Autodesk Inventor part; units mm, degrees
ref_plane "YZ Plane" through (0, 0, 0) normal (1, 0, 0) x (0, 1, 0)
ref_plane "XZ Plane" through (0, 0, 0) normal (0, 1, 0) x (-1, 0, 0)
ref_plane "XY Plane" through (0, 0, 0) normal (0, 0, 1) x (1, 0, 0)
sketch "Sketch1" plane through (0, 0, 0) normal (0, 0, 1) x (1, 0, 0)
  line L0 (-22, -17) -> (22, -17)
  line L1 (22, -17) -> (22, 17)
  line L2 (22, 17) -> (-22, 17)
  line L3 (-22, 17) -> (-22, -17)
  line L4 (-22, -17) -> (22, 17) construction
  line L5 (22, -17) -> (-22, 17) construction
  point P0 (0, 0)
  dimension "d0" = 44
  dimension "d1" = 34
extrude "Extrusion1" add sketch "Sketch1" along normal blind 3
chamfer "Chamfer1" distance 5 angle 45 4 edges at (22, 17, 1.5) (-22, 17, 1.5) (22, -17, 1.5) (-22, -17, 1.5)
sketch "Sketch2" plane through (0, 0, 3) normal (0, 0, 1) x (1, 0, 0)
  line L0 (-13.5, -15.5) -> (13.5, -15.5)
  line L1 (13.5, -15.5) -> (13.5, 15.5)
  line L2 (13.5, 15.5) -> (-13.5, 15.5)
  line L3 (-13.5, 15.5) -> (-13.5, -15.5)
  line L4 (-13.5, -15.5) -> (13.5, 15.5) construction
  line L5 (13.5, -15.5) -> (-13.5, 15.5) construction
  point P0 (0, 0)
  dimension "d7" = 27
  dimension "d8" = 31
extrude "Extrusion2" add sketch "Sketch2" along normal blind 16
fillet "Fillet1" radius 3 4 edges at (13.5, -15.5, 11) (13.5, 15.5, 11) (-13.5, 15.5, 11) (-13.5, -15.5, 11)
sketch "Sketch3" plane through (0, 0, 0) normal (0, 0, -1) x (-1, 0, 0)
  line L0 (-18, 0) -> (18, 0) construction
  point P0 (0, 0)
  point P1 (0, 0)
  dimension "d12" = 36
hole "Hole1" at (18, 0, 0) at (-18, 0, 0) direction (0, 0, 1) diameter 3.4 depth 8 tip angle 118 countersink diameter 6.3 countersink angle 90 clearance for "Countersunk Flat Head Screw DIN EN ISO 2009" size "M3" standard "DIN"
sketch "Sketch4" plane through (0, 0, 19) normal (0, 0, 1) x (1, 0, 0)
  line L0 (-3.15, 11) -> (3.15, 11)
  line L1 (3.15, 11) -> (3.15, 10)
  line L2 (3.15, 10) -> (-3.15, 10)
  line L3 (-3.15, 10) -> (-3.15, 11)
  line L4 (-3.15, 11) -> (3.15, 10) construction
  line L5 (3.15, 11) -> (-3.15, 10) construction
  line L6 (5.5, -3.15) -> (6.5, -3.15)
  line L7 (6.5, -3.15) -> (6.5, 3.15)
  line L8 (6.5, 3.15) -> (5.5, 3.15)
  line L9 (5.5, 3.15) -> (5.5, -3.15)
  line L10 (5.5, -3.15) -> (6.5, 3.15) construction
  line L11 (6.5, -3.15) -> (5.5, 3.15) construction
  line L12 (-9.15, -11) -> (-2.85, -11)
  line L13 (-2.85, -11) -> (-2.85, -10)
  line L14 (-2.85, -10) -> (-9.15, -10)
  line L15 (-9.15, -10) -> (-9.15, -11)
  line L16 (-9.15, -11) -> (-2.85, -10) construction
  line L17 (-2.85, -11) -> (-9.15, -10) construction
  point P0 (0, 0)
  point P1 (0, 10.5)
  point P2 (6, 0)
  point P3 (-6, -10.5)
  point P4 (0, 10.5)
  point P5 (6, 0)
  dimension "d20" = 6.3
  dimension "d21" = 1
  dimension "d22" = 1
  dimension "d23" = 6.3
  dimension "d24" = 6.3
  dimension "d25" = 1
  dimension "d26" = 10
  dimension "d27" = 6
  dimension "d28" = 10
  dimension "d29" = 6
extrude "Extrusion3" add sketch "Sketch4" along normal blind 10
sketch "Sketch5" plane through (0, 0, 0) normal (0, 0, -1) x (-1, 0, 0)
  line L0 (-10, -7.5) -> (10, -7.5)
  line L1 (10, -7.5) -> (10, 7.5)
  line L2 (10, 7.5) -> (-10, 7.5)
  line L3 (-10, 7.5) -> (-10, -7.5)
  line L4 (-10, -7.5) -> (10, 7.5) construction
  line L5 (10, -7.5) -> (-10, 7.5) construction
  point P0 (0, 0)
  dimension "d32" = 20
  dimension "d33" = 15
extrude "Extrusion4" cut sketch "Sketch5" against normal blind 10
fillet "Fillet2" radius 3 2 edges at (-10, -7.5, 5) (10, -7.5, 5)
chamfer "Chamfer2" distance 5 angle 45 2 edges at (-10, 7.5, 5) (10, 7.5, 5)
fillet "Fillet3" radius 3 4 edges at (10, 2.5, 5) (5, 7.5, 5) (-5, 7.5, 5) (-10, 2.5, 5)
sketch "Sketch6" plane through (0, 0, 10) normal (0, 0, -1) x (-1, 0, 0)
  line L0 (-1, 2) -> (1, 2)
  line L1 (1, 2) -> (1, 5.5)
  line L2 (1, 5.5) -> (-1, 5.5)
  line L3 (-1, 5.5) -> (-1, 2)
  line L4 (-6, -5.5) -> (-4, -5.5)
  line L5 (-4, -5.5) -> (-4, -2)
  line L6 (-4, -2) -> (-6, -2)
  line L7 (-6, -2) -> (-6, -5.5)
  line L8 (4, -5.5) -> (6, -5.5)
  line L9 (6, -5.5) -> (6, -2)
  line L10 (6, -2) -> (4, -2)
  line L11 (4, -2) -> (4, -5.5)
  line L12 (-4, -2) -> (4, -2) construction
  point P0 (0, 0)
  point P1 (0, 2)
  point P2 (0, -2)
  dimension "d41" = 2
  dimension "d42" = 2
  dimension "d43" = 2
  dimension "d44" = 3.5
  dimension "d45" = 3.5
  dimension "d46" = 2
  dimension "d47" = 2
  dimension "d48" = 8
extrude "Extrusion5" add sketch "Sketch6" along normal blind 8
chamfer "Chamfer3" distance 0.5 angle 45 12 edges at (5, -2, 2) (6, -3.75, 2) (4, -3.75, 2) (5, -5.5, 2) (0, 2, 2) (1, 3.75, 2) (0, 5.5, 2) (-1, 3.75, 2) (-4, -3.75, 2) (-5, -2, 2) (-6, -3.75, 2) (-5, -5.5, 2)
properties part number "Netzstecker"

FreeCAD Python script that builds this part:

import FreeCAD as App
import Part
import Sketcher

V = App.Vector


def edges_at(feature, points):
    """Names of the edges that pass closest to the given points."""
    edges = feature.Shape.Edges
    near = lambda p: min(range(len(edges)), key=lambda i: edges[i].distToShape(Part.Vertex(*p))[0])
    return sorted({f"Edge{near(p) + 1}" for p in points})


def add_polygon(sketch, points):
    """Adds a closed chain of lines whose ends are joined by coincident constraints."""
    first, n = sketch.GeometryCount, len(points)
    for a, b in zip(points, points[1:] + points[:1]):
        sketch.addGeometry(Part.LineSegment(App.Vector(*a, 0), App.Vector(*b, 0)), False)
    for i in range(n):
        sketch.addConstraint(Sketcher.Constraint("Coincident", first + i, 2, first + (i + 1) % n, 1))

doc = App.newDocument("Part")
body = doc.addObject("PartDesign::Body", "Body")

sketch1 = body.newObject("Sketcher::SketchObject", "Sketch")
sketch1.AttachmentSupport = (doc.getObject("XY_Plane"), [""])
sketch1.MapMode = "FlatFace"
add_polygon(sketch1, [(-22, 17), (-22, -17), (22, -17), (22, 17)])
sketch1.addConstraint(Sketcher.Constraint("Vertical", 0))
sketch1.addConstraint(Sketcher.Constraint("Horizontal", 1))
sketch1.addConstraint(Sketcher.Constraint("Vertical", 2))
sketch1.addConstraint(Sketcher.Constraint("Horizontal", 3))
sketch1.addConstraint(Sketcher.Constraint("Symmetric", 0, 2, 2, 2, -1, 1))
sketch1.addConstraint(Sketcher.Constraint("DistanceX", 1, 1, 1, 2, 44.0))
sketch1.addConstraint(Sketcher.Constraint("DistanceY", 0, 2, 0, 1, 34.0))
pad1 = body.newObject("PartDesign::Pad", "Pad")
pad1.Profile = sketch1
pad1.Length = 3
doc.recompute()

chamfer = body.newObject("PartDesign::Chamfer", "Chamfer")
chamfer.Base = (pad1, edges_at(pad1, [
    (22, 17, 1.5),
    (-22, 17, 1.5),
    (22, -17, 1.5),
    (-22, -17, 1.5),
]))
chamfer.Size = 5

sketch2 = body.newObject("Sketcher::SketchObject", "Sketch001")
sketch2.AttachmentSupport = (doc.getObject("XY_Plane"), [""])
sketch2.MapMode = "FlatFace"
sketch2.AttachmentOffset = App.Placement(V(0, 0, 3), App.Rotation())
add_polygon(sketch2, [(-14, 16), (-14, -16), (14, -16), (14, 16)])
sketch2.addConstraint(Sketcher.Constraint("Vertical", 0))
sketch2.addConstraint(Sketcher.Constraint("Horizontal", 1))
sketch2.addConstraint(Sketcher.Constraint("Vertical", 2))
sketch2.addConstraint(Sketcher.Constraint("Horizontal", 3))
sketch2.addConstraint(Sketcher.Constraint("Symmetric", 0, 2, 2, 2, -1, 1))
sketch2.addConstraint(Sketcher.Constraint("DistanceX", 1, 1, 1, 2, 27.0))
sketch2.addConstraint(Sketcher.Constraint("DistanceY", 0, 2, 0, 1, 31.0))
pad2 = body.newObject("PartDesign::Pad", "Pad001")
pad2.Profile = sketch2
pad2.Length = 16
doc.recompute()

fillet = body.newObject("PartDesign::Fillet", "Fillet")
fillet.Base = (pad2, edges_at(pad2, [
    (13.5, -15.5, 11),
    (13.5, 15.5, 11),
    (-13.5, 15.5, 11),
    (-13.5, -15.5, 11),
]))
fillet.Radius = 3

sketch3 = body.newObject("Sketcher::SketchObject", "Sketch002")
sketch3.AttachmentSupport = (doc.getObject("XY_Plane"), [""])
sketch3.MapMode = "FlatFace"
sketch3.addGeometry(Part.Circle(V(18, 0, 0), V(0, 0, 1), 1.7), False)
sketch3.addGeometry(Part.Circle(V(-18, 0, 0), V(0, 0, 1), 1.7), False)
sketch3.addConstraint(Sketcher.Constraint("Equal", 0, 1))
sketch3.addConstraint(Sketcher.Constraint("Symmetric", 0, 3, 1, 3, -1, 1))
sketch3.addConstraint(Sketcher.Constraint("PointOnObject", 0, 3, -1))
sketch3.addConstraint(Sketcher.Constraint("Diameter", 0, 3.4))
sketch3.addConstraint(Sketcher.Constraint("DistanceX", -1, 1, 0, 3, 18.0))
doc.recompute()
hole = body.newObject("PartDesign::Hole", "Hole")
hole.Profile = sketch3
hole.ThreadType = "None"
hole.Diameter = 3.4
hole.DepthType = "Dimension"
hole.Depth = 8
hole.DrillPoint = "Angled"
hole.DrillPointAngle = 118
hole.HoleCutType = "Countersink"
hole.HoleCutDiameter = 6.3
hole.HoleCutCountersinkAngle = 90
hole.Reversed = True

sketch4 = body.newObject("Sketcher::SketchObject", "Sketch003")
sketch4.AttachmentSupport = (doc.getObject("XY_Plane"), [""])
sketch4.MapMode = "FlatFace"
sketch4.AttachmentOffset = App.Placement(V(0, 0, 19), App.Rotation())
add_polygon(sketch4, [(3.1, 11), (-3.1, 11), (-3.1, 10), (3.1, 10)])
add_polygon(sketch4, [(5.5, 3.1), (5.5, -3.1), (6.5, -3.1), (6.5, 3.1)])
add_polygon(sketch4, [(-9.2, -10), (-9.2, -11), (-2.9, -11), (-2.9, -10)])
sketch4.addConstraint(Sketcher.Constraint("Horizontal", 0))
sketch4.addConstraint(Sketcher.Constraint("Vertical", 1))
sketch4.addConstraint(Sketcher.Constraint("Horizontal", 2))
sketch4.addConstraint(Sketcher.Constraint("Vertical", 3))
sketch4.addConstraint(Sketcher.Constraint("Vertical", 4))
sketch4.addConstraint(Sketcher.Constraint("Horizontal", 5))
sketch4.addConstraint(Sketcher.Constraint("Vertical", 6))
sketch4.addConstraint(Sketcher.Constraint("Horizontal", 7))
sketch4.addConstraint(Sketcher.Constraint("Vertical", 8))
sketch4.addConstraint(Sketcher.Constraint("Horizontal", 9))
sketch4.addConstraint(Sketcher.Constraint("Vertical", 10))
sketch4.addConstraint(Sketcher.Constraint("Horizontal", 11))
sketch4.addConstraint(Sketcher.Constraint("Equal", 2, 9))
sketch4.addConstraint(Sketcher.Constraint("Equal", 7, 1))
sketch4.addConstraint(Sketcher.Constraint("Equal", 11, 4))
sketch4.addConstraint(Sketcher.Constraint("Equal", 3, 8))
sketch4.addConstraint(Sketcher.Constraint("DistanceX", 5, 1, 5, 2, 1.0))
sketch4.addConstraint(Sketcher.Constraint("DistanceX", 0, 2, 0, 1, 6.3))
sketch4.addConstraint(Sketcher.Constraint("DistanceY", -1, 1, 1, 2, 10.0))
sketch4.addConstraint(Sketcher.Constraint("DistanceY", 10, 2, -1, 1, 10.0))
sketch4.addConstraint(Sketcher.Constraint("DistanceX", 8, 2, 1, 2, 6.0))
sketch4.addConstraint(Sketcher.Constraint("DistanceX", -1, 1, 4, 2, 5.5))
sketch4.addConstraint(Sketcher.Constraint("DistanceX", 0, 2, -1, 1, 3.15))
sketch4.addConstraint(Sketcher.Constraint("DistanceY", 4, 2, -1, 1, 3.15))
pad3 = body.newObject("PartDesign::Pad", "Pad002")
pad3.Profile = sketch4
pad3.Length = 10

sketch5 = body.newObject("Sketcher::SketchObject", "Sketch004")
sketch5.AttachmentSupport = (doc.getObject("XY_Plane"), [""])
sketch5.MapMode = "FlatFace"
add_polygon(sketch5, [(10, 8), (10, -8), (-10, -8), (-10, 8)])
sketch5.addConstraint(Sketcher.Constraint("Vertical", 0))
sketch5.addConstraint(Sketcher.Constraint("Horizontal", 1))
sketch5.addConstraint(Sketcher.Constraint("Vertical", 2))
sketch5.addConstraint(Sketcher.Constraint("Horizontal", 3))
sketch5.addConstraint(Sketcher.Constraint("Symmetric", 0, 2, 2, 2, -1, 1))
sketch5.addConstraint(Sketcher.Constraint("DistanceX", 1, 2, 1, 1, 20.0))
sketch5.addConstraint(Sketcher.Constraint("DistanceY", 0, 2, 0, 1, 15.0))
pocket1 = body.newObject("PartDesign::Pocket", "Pocket")
pocket1.Profile = sketch5
pocket1.Length = 10
pocket1.Reversed = True
doc.recompute()

fillet2 = body.newObject("PartDesign::Fillet", "Fillet001")
fillet2.Base = (pocket1, edges_at(pocket1, [(-10, -7.5, 5), (10, -7.5, 5)]))
fillet2.Radius = 3
doc.recompute()

chamfer2 = body.newObject("PartDesign::Chamfer", "Chamfer001")
chamfer2.Base = (fillet2, edges_at(fillet2, [(-10, 7.5, 5), (10, 7.5, 5)]))
chamfer2.Size = 5
doc.recompute()

fillet3 = body.newObject("PartDesign::Fillet", "Fillet002")
fillet3.Base = (chamfer2, edges_at(chamfer2, [
    (10, 2.5, 5),
    (5, 7.5, 5),
    (-5, 7.5, 5),
    (-10, 2.5, 5),
]))
fillet3.Radius = 3

sketch6 = body.newObject("Sketcher::SketchObject", "Sketch005")
sketch6.AttachmentSupport = (doc.getObject("XY_Plane"), [""])
sketch6.MapMode = "FlatFace"
sketch6.AttachmentOffset = App.Placement(V(0, 0, 10), App.Rotation())
add_polygon(sketch6, [(1, 5.5), (1, 2), (-1, 2), (-1, 5.5)])
add_polygon(sketch6, [(6, -2), (6, -5.5), (4, -5.5), (4, -2)])
add_polygon(sketch6, [(-4, -2), (-4, -5.5), (-6, -5.5), (-6, -2)])
sketch6.addConstraint(Sketcher.Constraint("Vertical", 0))
sketch6.addConstraint(Sketcher.Constraint("Horizontal", 1))
sketch6.addConstraint(Sketcher.Constraint("Vertical", 2))
sketch6.addConstraint(Sketcher.Constraint("Horizontal", 3))
sketch6.addConstraint(Sketcher.Constraint("Vertical", 4))
sketch6.addConstraint(Sketcher.Constraint("Horizontal", 5))
sketch6.addConstraint(Sketcher.Constraint("Vertical", 6))
sketch6.addConstraint(Sketcher.Constraint("Horizontal", 7))
sketch6.addConstraint(Sketcher.Constraint("Vertical", 8))
sketch6.addConstraint(Sketcher.Constraint("Horizontal", 9))
sketch6.addConstraint(Sketcher.Constraint("Vertical", 10))
sketch6.addConstraint(Sketcher.Constraint("Horizontal", 11))
sketch6.addConstraint(Sketcher.Constraint("Symmetric", 5, 2, 8, 2, -2))
sketch6.addConstraint(Sketcher.Constraint("Symmetric", 7, 2, 10, 2, -2))
sketch6.addConstraint(Sketcher.Constraint("Equal", 3, 5))
sketch6.addConstraint(Sketcher.Constraint("Equal", 2, 4))
sketch6.addConstraint(Sketcher.Constraint("DistanceX", 1, 2, 1, 1, 2.0))
sketch6.addConstraint(Sketcher.Constraint("DistanceY", 0, 2, 0, 1, 3.5))
sketch6.addConstraint(Sketcher.Constraint("DistanceY", -1, 1, 0, 2, 2.0))
sketch6.addConstraint(Sketcher.Constraint("DistanceY", 6, 2, -1, 1, 2.0))
sketch6.addConstraint(Sketcher.Constraint("DistanceX", 8, 2, 5, 2, 8.0))
sketch6.addConstraint(Sketcher.Constraint("DistanceX", -1, 1, 0, 2, 1.0))
pad4 = body.newObject("PartDesign::Pad", "Pad003")
pad4.Profile = sketch6
pad4.Length = 8
pad4.Reversed = True
doc.recompute()

chamfer3 = body.newObject("PartDesign::Chamfer", "Chamfer002")
chamfer3.Base = (pad4, edges_at(pad4, [
    (5, -2, 2),
    (6, -3.75, 2),
    (4, -3.75, 2),
    (5, -5.5, 2),
    (0, 2, 2),
    (1, 3.75, 2),
    (0, 5.5, 2),
    (-1, 3.75, 2),
    (-4, -3.75, 2),
    (-5, -2, 2),
    (-6, -3.75, 2),
    (-5, -5.5, 2),
]))
chamfer3.Size = 0.5

doc.recompute()
